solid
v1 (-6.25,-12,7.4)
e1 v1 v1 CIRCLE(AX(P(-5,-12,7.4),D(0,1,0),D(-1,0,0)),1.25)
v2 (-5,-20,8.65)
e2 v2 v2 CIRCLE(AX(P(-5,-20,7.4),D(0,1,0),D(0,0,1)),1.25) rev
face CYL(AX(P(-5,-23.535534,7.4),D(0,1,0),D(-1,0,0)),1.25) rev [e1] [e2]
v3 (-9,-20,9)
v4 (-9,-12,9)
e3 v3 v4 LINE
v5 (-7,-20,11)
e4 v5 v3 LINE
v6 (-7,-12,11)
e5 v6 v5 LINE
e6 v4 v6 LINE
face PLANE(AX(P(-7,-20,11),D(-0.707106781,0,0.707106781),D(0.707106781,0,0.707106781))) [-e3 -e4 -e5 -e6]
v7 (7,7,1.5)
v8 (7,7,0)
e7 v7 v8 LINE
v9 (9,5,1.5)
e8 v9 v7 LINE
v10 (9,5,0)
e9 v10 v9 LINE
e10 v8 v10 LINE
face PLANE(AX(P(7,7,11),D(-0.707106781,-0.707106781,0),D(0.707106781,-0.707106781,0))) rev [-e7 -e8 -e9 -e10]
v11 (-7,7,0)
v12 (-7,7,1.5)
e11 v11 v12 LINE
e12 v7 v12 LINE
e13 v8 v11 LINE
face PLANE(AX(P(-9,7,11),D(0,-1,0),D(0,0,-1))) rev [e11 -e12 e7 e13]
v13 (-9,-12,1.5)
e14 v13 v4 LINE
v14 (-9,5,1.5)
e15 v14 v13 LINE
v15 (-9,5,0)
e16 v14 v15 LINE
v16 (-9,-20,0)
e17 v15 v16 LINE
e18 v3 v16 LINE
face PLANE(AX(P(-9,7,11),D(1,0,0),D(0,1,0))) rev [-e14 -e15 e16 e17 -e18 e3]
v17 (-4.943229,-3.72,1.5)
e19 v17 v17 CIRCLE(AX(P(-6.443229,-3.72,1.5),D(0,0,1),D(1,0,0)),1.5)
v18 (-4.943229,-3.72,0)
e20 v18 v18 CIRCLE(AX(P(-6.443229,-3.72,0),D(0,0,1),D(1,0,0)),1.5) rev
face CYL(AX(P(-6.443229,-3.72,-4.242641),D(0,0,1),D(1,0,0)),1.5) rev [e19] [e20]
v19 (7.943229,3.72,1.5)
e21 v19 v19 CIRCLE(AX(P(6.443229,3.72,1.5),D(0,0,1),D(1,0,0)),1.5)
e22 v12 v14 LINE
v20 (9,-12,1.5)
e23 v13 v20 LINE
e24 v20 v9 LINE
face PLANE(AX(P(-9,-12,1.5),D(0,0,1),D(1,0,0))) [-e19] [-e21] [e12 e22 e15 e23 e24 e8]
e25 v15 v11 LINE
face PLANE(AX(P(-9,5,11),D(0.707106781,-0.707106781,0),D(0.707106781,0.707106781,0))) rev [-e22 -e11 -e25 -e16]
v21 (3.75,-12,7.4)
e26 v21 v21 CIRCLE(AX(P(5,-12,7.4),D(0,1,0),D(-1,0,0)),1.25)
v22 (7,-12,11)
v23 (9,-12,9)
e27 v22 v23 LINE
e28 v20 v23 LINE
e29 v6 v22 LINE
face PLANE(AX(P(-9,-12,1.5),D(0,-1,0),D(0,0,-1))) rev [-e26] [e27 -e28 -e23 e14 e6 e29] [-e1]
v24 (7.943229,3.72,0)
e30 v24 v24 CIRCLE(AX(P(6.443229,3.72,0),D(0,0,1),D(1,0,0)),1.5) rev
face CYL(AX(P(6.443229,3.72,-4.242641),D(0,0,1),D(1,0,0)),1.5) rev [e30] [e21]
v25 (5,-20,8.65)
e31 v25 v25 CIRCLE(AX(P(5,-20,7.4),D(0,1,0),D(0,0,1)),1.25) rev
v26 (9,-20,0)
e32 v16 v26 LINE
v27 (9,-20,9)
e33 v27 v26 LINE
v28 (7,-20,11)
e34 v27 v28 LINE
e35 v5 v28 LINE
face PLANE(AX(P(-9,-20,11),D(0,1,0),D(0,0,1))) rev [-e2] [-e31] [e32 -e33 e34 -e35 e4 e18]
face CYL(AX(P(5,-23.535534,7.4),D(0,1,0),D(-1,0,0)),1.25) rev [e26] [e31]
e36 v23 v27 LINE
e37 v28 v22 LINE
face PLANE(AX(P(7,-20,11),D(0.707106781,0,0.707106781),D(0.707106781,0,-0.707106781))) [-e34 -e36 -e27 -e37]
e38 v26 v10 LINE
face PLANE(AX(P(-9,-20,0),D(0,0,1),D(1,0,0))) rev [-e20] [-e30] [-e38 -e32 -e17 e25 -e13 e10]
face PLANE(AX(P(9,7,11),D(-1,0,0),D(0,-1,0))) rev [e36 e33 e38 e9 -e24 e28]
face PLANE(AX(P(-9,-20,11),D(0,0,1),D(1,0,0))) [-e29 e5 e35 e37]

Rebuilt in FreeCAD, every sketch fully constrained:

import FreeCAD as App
import Part
import Sketcher
Q = App.Units.Quantity


def edges_at(feature, points):
    """Names of the edges that pass closest to the given points."""
    edges = feature.Shape.Edges
    near = lambda p: min(range(len(edges)), key=lambda i: edges[i].distToShape(Part.Vertex(*p))[0])
    return sorted({f"Edge{near(p) + 1}" for p in points})


def add_polygon(sketch, points):
    """Adds a closed chain of lines whose ends are joined by coincident constraints."""
    first, n = sketch.GeometryCount, len(points)
    for a, b in zip(points, points[1:] + points[:1]):
        sketch.addGeometry(Part.LineSegment(App.Vector(*a, 0), App.Vector(*b, 0)), False)
    for i in range(n):
        sketch.addConstraint(Sketcher.Constraint("Coincident", first + i, 2, first + (i + 1) % n, 1))

doc = App.newDocument("Part")
body = doc.addObject("PartDesign::Body", "Body")

# Sketch on XY plane
sketch1 = body.newObject("Sketcher::SketchObject", "Sketch")
sketch1.AttachmentSupport = (doc.getObject("XY_Plane"), [""])
sketch1.MapMode = "FlatFace"
add_polygon(sketch1, [(-9, 7), (-9, -20), (9, -20), (9, 7)])  # lines 0-3
sketch1.addConstraint(Sketcher.Constraint("Vertical", 0))
sketch1.addConstraint(Sketcher.Constraint("Horizontal", 1))
sketch1.addConstraint(Sketcher.Constraint("Vertical", 2))
sketch1.addConstraint(Sketcher.Constraint("Horizontal", 3))
sketch1.addConstraint(Sketcher.Constraint("DistanceX", 1, 1, 1, 2, Q("18 mm")))
sketch1.addConstraint(Sketcher.Constraint("DistanceY", 0, 2, 0, 1, Q("27 mm")))
sketch1.addConstraint(Sketcher.Constraint("DistanceX", 0, 2, -1, 1, Q("9 mm")))
sketch1.addConstraint(Sketcher.Constraint("DistanceY", 0, 2, -1, 1, Q("20 mm")))
pad1 = body.newObject("PartDesign::Pad", "Pad")
pad1.Profile = sketch1
pad1.Length = 11

# Sketch on XY plane
sketch2 = body.newObject("Sketcher::SketchObject", "Sketch001")
sketch2.AttachmentSupport = (doc.getObject("XY_Plane"), [""])
sketch2.MapMode = "FlatFace"
sketch2.AttachmentOffset = App.Placement(App.Vector(0, 0, 11), App.Rotation())
add_polygon(sketch2, [(-9, 7), (-9, -12), (9, -12), (9, 7)])  # lines 0-3
sketch2.addConstraint(Sketcher.Constraint("Vertical", 0))
sketch2.addConstraint(Sketcher.Constraint("Horizontal", 1))
sketch2.addConstraint(Sketcher.Constraint("Vertical", 2))
sketch2.addConstraint(Sketcher.Constraint("Horizontal", 3))
sketch2.addConstraint(Sketcher.Constraint("DistanceX", 1, 1, 1, 2, Q("18 mm")))
sketch2.addConstraint(Sketcher.Constraint("DistanceY", 0, 2, 0, 1, Q("19 mm")))
sketch2.addConstraint(Sketcher.Constraint("DistanceX", 0, 2, -1, 1, Q("9 mm")))
sketch2.addConstraint(Sketcher.Constraint("DistanceY", 0, 2, -1, 1, Q("12 mm")))
pocket1 = body.newObject("PartDesign::Pocket", "Pocket")
pocket1.Profile = sketch2
pocket1.Length = 9.5

# Sketch on XY plane
sketch3 = body.newObject("Sketcher::SketchObject", "Sketch002")
sketch3.AttachmentSupport = (doc.getObject("XY_Plane"), [""])
sketch3.MapMode = "FlatFace"
sketch3.AttachmentOffset = App.Placement(App.Vector(0, 0, 1.5), App.Rotation())
sketch3.addGeometry(Part.Circle(App.Vector(6.443229, 3.72, 0), App.Vector(0, 0, 1), 1.5), False)
sketch3.addGeometry(Part.Circle(App.Vector(-6.443229, -3.72, 0), App.Vector(0, 0, 1), 1.5), False)
sketch3.addConstraint(Sketcher.Constraint("Equal", 0, 1))
sketch3.addConstraint(Sketcher.Constraint("Symmetric", 0, 3, 1, 3, -1, 1))
sketch3.addConstraint(Sketcher.Constraint("Diameter", 0, Q("3 mm")))
sketch3.addConstraint(Sketcher.Constraint("DistanceY", -1, 1, 0, 3, Q("3.72 mm")))
sketch3.addConstraint(Sketcher.Constraint("DistanceX", -1, 1, 0, 3, Q("6.443229 mm")))
pocket2 = body.newObject("PartDesign::Pocket", "Pocket001")
pocket2.Profile = sketch3
pocket2.Length = 1.5

# Sketch on XZ plane
sketch4 = body.newObject("Sketcher::SketchObject", "Sketch003")
sketch4.AttachmentSupport = (doc.getObject("XZ_Plane"), [""])
sketch4.MapMode = "FlatFace"
sketch4.AttachmentOffset = App.Placement(App.Vector(0, 0, 12), App.Rotation())
sketch4.addGeometry(Part.Circle(App.Vector(-5, 7.4, 0), App.Vector(0, 0, 1), 1.25), False)
sketch4.addGeometry(Part.Circle(App.Vector(5, 7.4, 0), App.Vector(0, 0, 1), 1.25), False)
sketch4.addConstraint(Sketcher.Constraint("Equal", 0, 1))
sketch4.addConstraint(Sketcher.Constraint("Symmetric", 0, 3, 1, 3, -2))
sketch4.addConstraint(Sketcher.Constraint("Diameter", 0, Q("2.5 mm")))
sketch4.addConstraint(Sketcher.Constraint("DistanceX", 0, 3, -1, 1, Q("5 mm")))
sketch4.addConstraint(Sketcher.Constraint("DistanceY", -1, 1, 0, 3, Q("7.4 mm")))
pocket3 = body.newObject("PartDesign::Pocket", "Pocket002")
pocket3.Profile = sketch4
pocket3.Length = 8
pocket3.Reversed = True

# Sketch on XZ plane
sketch5 = body.newObject("Sketcher::SketchObject", "Sketch004")
sketch5.AttachmentSupport = (doc.getObject("XZ_Plane"), [""])
sketch5.MapMode = "FlatFace"
sketch5.AttachmentOffset = App.Placement(App.Vector(0, 0, 20), App.Rotation())
sketch5.addGeometry(Part.Circle(App.Vector(5, 7.4, 0), App.Vector(0, 0, 1), 1.25), False)
sketch5.addGeometry(Part.Circle(App.Vector(-5, 7.4, 0), App.Vector(0, 0, 1), 1.25), False)
sketch5.addConstraint(Sketcher.Constraint("Equal", 0, 1))
sketch5.addConstraint(Sketcher.Constraint("Symmetric", 0, 3, 1, 3, -2))
sketch5.addConstraint(Sketcher.Constraint("Diameter", 0, Q("2.5 mm")))
sketch5.addConstraint(Sketcher.Constraint("DistanceX", -1, 1, 0, 3, Q("5 mm")))
sketch5.addConstraint(Sketcher.Constraint("DistanceY", -1, 1, 0, 3, Q("7.4 mm")))
doc.recompute()
hole = body.newObject("PartDesign::Hole", "Hole")
hole.Profile = sketch5
hole.ThreadType = "None"
hole.Diameter = 2.5
hole.DepthType = "Dimension"
hole.Depth = 11.5
hole.DrillPoint = "Angled"
hole.DrillPointAngle = 118
doc.recompute()

chamfer = body.newObject("PartDesign::Chamfer", "Chamfer")
chamfer.Base = (hole, edges_at(hole, [
    (9, -16, 11),
    (-9, -16, 11),
    (-9, 7, 0.75),
    (9, 7, 0.75),
]))
chamfer.Size = 2

doc.recompute()
